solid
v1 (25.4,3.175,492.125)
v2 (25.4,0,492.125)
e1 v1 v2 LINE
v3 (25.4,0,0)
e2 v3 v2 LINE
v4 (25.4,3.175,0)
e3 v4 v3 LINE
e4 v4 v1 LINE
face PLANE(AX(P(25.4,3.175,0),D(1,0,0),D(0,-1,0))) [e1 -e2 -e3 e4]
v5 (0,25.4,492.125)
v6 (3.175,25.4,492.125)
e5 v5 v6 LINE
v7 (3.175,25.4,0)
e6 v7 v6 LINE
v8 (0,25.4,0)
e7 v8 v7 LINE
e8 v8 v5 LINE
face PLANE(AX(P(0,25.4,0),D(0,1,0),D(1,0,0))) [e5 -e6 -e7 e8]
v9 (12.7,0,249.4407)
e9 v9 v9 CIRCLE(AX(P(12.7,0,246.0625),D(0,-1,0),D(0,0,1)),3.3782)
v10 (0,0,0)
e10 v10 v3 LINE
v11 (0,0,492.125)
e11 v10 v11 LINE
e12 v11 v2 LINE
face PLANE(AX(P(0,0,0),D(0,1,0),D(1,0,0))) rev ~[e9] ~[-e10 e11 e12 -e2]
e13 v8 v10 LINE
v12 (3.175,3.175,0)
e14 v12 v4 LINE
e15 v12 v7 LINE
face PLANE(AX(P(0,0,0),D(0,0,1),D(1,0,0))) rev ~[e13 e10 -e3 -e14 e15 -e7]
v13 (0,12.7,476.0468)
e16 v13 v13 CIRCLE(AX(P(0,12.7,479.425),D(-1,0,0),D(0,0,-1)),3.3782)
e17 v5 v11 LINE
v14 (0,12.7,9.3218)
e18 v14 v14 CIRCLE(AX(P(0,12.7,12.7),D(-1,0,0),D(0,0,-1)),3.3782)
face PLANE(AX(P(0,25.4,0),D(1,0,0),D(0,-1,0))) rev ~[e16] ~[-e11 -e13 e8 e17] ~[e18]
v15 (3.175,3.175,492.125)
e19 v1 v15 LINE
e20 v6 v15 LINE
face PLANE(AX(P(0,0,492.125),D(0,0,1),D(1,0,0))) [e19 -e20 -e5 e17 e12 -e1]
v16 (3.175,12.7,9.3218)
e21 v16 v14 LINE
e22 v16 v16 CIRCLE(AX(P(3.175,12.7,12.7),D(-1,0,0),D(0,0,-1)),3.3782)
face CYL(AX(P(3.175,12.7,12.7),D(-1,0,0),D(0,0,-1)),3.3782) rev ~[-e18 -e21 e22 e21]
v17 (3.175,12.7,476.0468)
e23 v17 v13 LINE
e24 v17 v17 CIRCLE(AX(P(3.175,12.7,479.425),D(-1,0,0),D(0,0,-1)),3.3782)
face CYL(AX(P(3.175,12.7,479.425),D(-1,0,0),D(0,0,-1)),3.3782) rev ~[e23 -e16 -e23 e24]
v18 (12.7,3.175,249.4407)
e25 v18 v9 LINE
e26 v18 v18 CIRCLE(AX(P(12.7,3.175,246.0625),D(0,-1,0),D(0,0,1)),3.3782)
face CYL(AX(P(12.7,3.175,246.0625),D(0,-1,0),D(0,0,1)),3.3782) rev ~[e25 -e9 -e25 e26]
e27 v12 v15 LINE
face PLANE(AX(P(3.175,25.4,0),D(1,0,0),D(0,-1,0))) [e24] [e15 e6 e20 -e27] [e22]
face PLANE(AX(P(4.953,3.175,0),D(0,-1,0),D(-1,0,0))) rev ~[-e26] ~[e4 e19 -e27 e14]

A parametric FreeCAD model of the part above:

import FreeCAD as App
import Part
import Sketcher

V = App.Vector
Q = App.Units.Quantity


def add_polygon(sketch, points):
    """Adds a closed chain of lines whose ends are joined by coincident constraints."""
    first, n = sketch.GeometryCount, len(points)
    for a, b in zip(points, points[1:] + points[:1]):
        sketch.addGeometry(Part.LineSegment(App.Vector(*a, 0), App.Vector(*b, 0)), False)
    for i in range(n):
        sketch.addConstraint(Sketcher.Constraint("Coincident", first + i, 2, first + (i + 1) % n, 1))

doc = App.newDocument("Part")
body = doc.addObject("PartDesign::Body", "Body")

sketch1 = body.newObject("Sketcher::SketchObject", "Sketch")
sketch1.AttachmentSupport = (doc.getObject("XY_Plane"), [""])
sketch1.MapMode = "FlatFace"
add_polygon(sketch1, [(3.2, 25.4), (0, 25.4), (0, 0), (25.4, 0), (25.4, 3.2), (3.2, 3.2)])
sketch1.addConstraint([
    Sketcher.Constraint("Horizontal", 0),
    Sketcher.Constraint("Vertical", 1),
    Sketcher.Constraint("Horizontal", 2),
    Sketcher.Constraint("Vertical", 3),
    Sketcher.Constraint("Horizontal", 4),
    Sketcher.Constraint("Vertical", 5),
    Sketcher.Constraint("Coincident", 1, 2, -1, 1),
    Sketcher.Constraint("Equal", 2, 1),
    Sketcher.Constraint("Equal", 0, 3),
    Sketcher.Constraint("DistanceX", 2, 1, 2, 2, Q("1 in")),
    Sketcher.Constraint("DistanceX", 0, 2, 0, 1, Q("0.125 in")),
])
pad1 = body.newObject("PartDesign::Pad", "Pad")
pad1.Profile = sketch1
pad1.Length = Q("19.375 in")

sketch2 = body.newObject("Sketcher::SketchObject", "Sketch001")
sketch2.AttachmentSupport = (doc.getObject("YZ_Plane"), [""])
sketch2.MapMode = "FlatFace"
sketch2.AttachmentOffset = App.Placement(V(0, 0, 0.125 * 25.4), App.Rotation())
sketch2.addGeometry([
    Part.Circle(V(12.7, 479.4, 0), V(0, 0, 1), 3.4),
    Part.Circle(V(12.7, 12.7, 0), V(0, 0, 1), 3.4),
], False)
sketch2.addConstraint([
    Sketcher.Constraint("Equal", 0, 1),
    Sketcher.Constraint("Vertical", 0, 3, 1, 3),
    Sketcher.Constraint("Diameter", 0, Q("0.266 in")),
    Sketcher.Constraint("DistanceX", -1, 1, 0, 3, Q("0.5 in")),
    Sketcher.Constraint("DistanceY", -1, 1, 1, 3, Q("0.5 in")),
    Sketcher.Constraint("DistanceY", -1, 1, 0, 3, Q("18.875 in")),
])
doc.recompute()
hole = body.newObject("PartDesign::Hole", "Hole")
hole.Profile = sketch2
hole.ThreadType = "None"
hole.Diameter = Q("0.266 in")
hole.DepthType = "Dimension"
hole.Depth = Q("1 in")
hole.DrillPoint = "Angled"
hole.DrillPointAngle = 118

sketch3 = body.newObject("Sketcher::SketchObject", "Sketch002")
sketch3.AttachmentSupport = (doc.getObject("XZ_Plane"), [""])
sketch3.MapMode = "FlatFace"
sketch3.AttachmentOffset = App.Placement(V(0, 0, -0.125 * 25.4), App.Rotation())
sketch3.addGeometry(Part.Circle(V(12.7, 246.1, 0), V(0, 0, 1), 3.4), False)
sketch3.addConstraint([
    Sketcher.Constraint("Diameter", 0, Q("0.266 in")),
    Sketcher.Constraint("DistanceX", -1, 1, 0, 3, Q("0.5 in")),
    Sketcher.Constraint("DistanceY", -1, 1, 0, 3, Q("9.6875 in")),
])
doc.recompute()
hole2 = body.newObject("PartDesign::Hole", "Hole001")
hole2.Profile = sketch3
hole2.ThreadType = "None"
hole2.Diameter = Q("0.266 in")
hole2.DepthType = "Dimension"
hole2.Depth = Q("1 in")
hole2.DrillPoint = "Angled"
hole2.DrillPointAngle = 118
hole2.Reversed = True

doc.recompute()
